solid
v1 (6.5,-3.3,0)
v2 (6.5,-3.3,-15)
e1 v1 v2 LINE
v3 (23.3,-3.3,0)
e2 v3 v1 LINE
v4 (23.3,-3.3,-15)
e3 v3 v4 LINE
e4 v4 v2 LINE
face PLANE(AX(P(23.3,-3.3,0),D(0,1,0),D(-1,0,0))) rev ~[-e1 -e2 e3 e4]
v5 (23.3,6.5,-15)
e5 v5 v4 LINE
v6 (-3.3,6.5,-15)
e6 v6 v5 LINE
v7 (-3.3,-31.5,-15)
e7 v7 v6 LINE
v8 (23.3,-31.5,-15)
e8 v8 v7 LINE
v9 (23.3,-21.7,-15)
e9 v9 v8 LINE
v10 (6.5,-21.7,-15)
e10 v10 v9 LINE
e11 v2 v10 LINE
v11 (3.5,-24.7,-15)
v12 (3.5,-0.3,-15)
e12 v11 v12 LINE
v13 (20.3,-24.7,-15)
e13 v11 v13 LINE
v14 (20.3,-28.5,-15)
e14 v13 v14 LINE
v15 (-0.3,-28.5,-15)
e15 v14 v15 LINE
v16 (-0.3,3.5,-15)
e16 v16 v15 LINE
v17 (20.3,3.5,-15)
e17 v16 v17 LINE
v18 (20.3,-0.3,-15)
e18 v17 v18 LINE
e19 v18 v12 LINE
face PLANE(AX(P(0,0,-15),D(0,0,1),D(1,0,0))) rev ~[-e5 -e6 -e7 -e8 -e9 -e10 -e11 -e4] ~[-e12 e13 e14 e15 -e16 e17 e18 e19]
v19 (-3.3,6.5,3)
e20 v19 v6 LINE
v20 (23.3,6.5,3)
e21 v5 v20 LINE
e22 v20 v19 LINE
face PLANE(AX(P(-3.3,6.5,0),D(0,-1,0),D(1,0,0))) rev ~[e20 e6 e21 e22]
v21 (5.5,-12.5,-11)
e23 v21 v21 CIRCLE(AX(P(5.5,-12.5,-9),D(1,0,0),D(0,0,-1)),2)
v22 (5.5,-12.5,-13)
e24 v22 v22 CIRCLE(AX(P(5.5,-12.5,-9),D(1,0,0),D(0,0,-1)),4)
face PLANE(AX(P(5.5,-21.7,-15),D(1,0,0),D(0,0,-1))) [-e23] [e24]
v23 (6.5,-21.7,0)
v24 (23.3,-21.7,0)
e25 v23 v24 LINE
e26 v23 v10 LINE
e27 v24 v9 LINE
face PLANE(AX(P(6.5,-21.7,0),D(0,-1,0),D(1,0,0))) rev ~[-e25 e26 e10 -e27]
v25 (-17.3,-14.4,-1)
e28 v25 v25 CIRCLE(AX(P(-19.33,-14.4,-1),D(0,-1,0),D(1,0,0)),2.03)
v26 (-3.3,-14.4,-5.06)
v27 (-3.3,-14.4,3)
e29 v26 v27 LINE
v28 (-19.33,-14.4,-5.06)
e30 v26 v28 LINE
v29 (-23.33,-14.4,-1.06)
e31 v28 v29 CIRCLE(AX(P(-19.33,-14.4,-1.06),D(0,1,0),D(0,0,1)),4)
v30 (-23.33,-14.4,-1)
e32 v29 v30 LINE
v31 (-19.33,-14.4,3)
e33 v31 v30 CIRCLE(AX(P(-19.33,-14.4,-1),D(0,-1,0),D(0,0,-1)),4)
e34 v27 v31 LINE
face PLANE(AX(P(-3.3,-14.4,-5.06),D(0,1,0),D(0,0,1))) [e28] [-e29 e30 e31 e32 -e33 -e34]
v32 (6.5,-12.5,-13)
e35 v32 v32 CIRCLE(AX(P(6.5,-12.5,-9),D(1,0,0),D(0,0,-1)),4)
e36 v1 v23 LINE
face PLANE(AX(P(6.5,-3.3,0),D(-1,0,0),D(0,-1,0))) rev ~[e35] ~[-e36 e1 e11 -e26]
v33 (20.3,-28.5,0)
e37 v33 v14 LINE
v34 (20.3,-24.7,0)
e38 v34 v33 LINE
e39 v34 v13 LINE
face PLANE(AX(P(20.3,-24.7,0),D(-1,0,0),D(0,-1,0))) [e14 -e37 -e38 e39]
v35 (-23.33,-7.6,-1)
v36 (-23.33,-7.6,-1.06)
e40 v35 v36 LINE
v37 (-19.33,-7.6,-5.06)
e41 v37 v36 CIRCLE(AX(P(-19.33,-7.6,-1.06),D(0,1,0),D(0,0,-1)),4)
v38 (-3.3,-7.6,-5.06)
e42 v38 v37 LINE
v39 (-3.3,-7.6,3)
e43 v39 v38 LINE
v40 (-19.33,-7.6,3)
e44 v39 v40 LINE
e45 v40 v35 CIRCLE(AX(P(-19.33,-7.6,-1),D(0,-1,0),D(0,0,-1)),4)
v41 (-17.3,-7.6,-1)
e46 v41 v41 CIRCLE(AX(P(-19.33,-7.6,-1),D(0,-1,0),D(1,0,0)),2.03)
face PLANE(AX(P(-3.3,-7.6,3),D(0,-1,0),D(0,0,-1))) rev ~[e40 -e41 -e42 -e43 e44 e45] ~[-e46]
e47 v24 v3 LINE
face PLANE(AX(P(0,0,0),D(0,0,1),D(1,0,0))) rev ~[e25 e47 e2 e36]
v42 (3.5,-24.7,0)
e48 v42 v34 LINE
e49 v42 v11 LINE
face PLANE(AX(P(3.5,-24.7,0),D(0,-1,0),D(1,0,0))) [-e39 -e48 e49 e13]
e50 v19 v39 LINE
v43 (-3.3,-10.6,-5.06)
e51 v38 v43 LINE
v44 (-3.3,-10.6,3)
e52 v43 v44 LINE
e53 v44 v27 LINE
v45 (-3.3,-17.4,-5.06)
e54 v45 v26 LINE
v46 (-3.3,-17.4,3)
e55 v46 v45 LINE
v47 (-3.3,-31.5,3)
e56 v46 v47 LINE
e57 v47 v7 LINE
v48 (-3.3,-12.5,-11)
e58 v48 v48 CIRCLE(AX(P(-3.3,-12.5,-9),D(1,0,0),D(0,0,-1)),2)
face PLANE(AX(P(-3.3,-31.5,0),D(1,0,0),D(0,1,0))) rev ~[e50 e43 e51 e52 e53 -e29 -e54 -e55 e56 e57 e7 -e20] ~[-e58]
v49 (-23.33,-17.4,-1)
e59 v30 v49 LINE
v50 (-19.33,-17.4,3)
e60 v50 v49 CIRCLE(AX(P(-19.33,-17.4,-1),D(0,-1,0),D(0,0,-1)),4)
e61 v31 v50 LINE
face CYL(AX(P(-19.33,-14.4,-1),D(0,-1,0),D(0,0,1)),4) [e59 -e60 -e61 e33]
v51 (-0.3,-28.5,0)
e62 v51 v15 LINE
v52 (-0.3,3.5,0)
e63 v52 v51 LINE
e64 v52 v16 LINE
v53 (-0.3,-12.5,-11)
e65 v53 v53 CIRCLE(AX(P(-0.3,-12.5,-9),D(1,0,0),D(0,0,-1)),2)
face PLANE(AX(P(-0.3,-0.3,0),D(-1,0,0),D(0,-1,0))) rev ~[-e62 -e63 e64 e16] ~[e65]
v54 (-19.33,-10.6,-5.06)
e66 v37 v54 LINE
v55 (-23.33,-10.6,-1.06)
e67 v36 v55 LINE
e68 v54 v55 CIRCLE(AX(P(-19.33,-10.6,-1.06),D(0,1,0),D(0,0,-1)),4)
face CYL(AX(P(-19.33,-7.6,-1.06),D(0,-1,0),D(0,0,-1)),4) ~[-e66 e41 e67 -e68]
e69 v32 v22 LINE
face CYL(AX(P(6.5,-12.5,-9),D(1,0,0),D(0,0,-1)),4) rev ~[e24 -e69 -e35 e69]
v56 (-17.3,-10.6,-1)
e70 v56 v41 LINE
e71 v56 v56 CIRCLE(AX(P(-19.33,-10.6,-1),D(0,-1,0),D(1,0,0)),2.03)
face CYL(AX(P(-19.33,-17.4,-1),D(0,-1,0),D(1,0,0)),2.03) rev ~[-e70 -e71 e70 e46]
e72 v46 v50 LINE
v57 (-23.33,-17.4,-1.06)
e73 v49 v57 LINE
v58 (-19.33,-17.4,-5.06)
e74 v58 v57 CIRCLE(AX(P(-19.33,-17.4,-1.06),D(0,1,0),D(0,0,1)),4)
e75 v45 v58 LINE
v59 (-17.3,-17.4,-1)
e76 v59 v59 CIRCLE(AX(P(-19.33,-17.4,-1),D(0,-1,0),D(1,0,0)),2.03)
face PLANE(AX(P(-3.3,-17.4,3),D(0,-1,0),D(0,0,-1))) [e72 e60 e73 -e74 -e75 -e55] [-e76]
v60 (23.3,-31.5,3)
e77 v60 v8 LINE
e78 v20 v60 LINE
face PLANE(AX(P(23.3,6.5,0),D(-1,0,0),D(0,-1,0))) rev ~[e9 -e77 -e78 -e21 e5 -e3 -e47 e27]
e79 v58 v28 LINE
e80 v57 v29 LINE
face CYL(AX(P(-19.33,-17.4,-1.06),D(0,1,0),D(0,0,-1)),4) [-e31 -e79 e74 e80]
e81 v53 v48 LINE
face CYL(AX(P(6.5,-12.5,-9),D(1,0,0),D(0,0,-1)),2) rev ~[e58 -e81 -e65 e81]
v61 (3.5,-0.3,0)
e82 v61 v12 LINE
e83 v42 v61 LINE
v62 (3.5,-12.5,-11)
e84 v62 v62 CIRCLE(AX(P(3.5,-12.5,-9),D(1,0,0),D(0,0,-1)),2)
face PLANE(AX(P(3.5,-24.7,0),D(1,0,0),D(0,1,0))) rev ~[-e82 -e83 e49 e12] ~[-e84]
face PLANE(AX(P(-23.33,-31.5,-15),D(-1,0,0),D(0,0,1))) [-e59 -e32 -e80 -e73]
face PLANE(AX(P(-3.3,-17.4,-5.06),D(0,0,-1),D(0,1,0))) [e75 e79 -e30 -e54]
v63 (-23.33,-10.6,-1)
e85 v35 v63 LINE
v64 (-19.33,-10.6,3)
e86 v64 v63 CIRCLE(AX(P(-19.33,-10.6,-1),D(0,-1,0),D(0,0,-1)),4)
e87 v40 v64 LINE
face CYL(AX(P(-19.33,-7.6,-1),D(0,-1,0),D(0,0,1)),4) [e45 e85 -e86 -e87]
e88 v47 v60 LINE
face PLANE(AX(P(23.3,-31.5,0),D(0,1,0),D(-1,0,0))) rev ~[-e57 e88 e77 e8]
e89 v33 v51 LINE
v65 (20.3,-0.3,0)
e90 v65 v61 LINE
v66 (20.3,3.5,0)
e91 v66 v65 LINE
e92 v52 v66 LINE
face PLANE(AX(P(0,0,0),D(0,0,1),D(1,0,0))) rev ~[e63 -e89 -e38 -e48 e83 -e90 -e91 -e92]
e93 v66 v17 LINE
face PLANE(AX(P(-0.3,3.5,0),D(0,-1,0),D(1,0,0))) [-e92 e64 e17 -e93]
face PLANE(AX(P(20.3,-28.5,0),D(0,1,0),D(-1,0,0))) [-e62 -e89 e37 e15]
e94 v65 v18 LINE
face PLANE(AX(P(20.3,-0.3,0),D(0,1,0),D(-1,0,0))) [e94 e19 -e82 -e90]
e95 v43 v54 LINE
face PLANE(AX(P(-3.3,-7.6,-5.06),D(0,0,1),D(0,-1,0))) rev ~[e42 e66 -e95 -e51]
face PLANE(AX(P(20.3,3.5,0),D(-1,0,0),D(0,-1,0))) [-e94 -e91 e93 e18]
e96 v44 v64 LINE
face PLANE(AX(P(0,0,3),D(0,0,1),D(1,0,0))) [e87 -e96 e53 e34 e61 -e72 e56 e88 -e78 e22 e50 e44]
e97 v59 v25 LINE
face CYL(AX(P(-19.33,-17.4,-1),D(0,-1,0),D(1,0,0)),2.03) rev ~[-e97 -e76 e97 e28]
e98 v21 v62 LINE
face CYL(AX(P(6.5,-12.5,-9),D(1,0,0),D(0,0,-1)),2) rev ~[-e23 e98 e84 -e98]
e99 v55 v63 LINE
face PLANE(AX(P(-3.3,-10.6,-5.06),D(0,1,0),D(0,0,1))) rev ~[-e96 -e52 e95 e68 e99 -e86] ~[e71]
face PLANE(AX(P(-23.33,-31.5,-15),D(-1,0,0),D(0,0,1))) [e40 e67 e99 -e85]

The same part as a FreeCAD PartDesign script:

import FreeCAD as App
import Part
import Sketcher

V = App.Vector
Q = App.Units.Quantity


def edges_at(feature, points):
    """Names of the edges that pass closest to the given points."""
    edges = feature.Shape.Edges
    near = lambda p: min(range(len(edges)), key=lambda i: edges[i].distToShape(Part.Vertex(*p))[0])
    return sorted({f"Edge{near(p) + 1}" for p in points})


def add_polygon(sketch, points):
    """Adds a closed chain of lines whose ends are joined by coincident constraints."""
    first, n = sketch.GeometryCount, len(points)
    for a, b in zip(points, points[1:] + points[:1]):
        sketch.addGeometry(Part.LineSegment(App.Vector(*a, 0), App.Vector(*b, 0)), False)
    for i in range(n):
        sketch.addConstraint(Sketcher.Constraint("Coincident", first + i, 2, first + (i + 1) % n, 1))

doc = App.newDocument("Part")
body = doc.addObject("PartDesign::Body", "Body")

# Sketch on XY plane
sketch1 = doc.addObject("Sketcher::SketchObject", "Sketch")
body.addObject(sketch1)
sketch1.AttachmentSupport = (doc.XY_Plane, [""])
sketch1.MapMode = "FlatFace"
add_polygon(sketch1, [(6.5, -21.7), (6.5, -3.3), (23.3, -3.3), (23.3, 6.5), (-3.3, 6.5), (-3.3, -31.5), (23.3, -31.5), (23.3, -21.7)])  # lines 0-7
add_polygon(sketch1, [(-0.3, -28.5), (-0.3, 3.5), (20.3, 3.5), (20.3, -0.3), (3.5, -0.3), (3.5, -24.7), (20.3, -24.7), (20.3, -28.5)])  # lines 8-15
sketch1.addConstraint(Sketcher.Constraint("Vertical", 0))
sketch1.addConstraint(Sketcher.Constraint("Horizontal", 1))
sketch1.addConstraint(Sketcher.Constraint("Vertical", 2))
sketch1.addConstraint(Sketcher.Constraint("Horizontal", 3))
sketch1.addConstraint(Sketcher.Constraint("Vertical", 4))
sketch1.addConstraint(Sketcher.Constraint("Horizontal", 5))
sketch1.addConstraint(Sketcher.Constraint("Vertical", 6))
sketch1.addConstraint(Sketcher.Constraint("Horizontal", 7))
sketch1.addConstraint(Sketcher.Constraint("Vertical", 8))
sketch1.addConstraint(Sketcher.Constraint("Horizontal", 9))
sketch1.addConstraint(Sketcher.Constraint("Vertical", 10))
sketch1.addConstraint(Sketcher.Constraint("Horizontal", 11))
sketch1.addConstraint(Sketcher.Constraint("Vertical", 12))
sketch1.addConstraint(Sketcher.Constraint("Horizontal", 13))
sketch1.addConstraint(Sketcher.Constraint("Vertical", 14))
sketch1.addConstraint(Sketcher.Constraint("Horizontal", 15))
sketch1.addConstraint(Sketcher.Constraint("Vertical", 2, 2, 5, 2))
sketch1.addConstraint(Sketcher.Constraint("Vertical", 10, 2, 13, 2))
sketch1.addConstraint(Sketcher.Constraint("Equal", 7, 11))
sketch1.addConstraint(Sketcher.Constraint("Equal", 2, 6))
sketch1.addConstraint(Sketcher.Constraint("Equal", 10, 14))
sketch1.addConstraint(Sketcher.Constraint("DistanceY", 10, 2, 10, 1, Q("3.8 mm")))
sketch1.addConstraint(Sketcher.Constraint("DistanceY", 12, 2, 12, 1, Q("24.4 mm")))
sketch1.addConstraint(Sketcher.Constraint("DistanceX", 3, 2, 8, 2, Q("3 mm")))
sketch1.addConstraint(Sketcher.Constraint("DistanceY", 8, 2, 3, 2, Q("3 mm")))
sketch1.addConstraint(Sketcher.Constraint("DistanceX", 9, 2, 2, 2, Q("3 mm")))
sketch1.addConstraint(Sketcher.Constraint("DistanceY", 1, 2, 10, 2, Q("3 mm")))
sketch1.addConstraint(Sketcher.Constraint("DistanceY", 12, 2, 7, 2, Q("3 mm")))
sketch1.addConstraint(Sketcher.Constraint("DistanceX", 8, 2, -1, 1, Q("0.3 mm")))
sketch1.addConstraint(Sketcher.Constraint("DistanceY", 10, 2, -1, 1, Q("0.3 mm")))
sketch1.addConstraint(Sketcher.Constraint("DistanceX", 8, 2, 11, 2, Q("3.8 mm")))
sketch1.addConstraint(Sketcher.Constraint("DistanceX", 1, 1, 1, 2, Q("16.8 mm")))
pad1 = doc.addObject("PartDesign::Pad", "Pad")
body.addObject(pad1)
pad1.Profile = sketch1
pad1.Length = 15
pad1.Reversed = True

# Sketch on XY plane
sketch2 = doc.addObject("Sketcher::SketchObject", "Sketch001")
body.addObject(sketch2)
sketch2.AttachmentSupport = (doc.XY_Plane, [""])
sketch2.MapMode = "FlatFace"
add_polygon(sketch2, [(23, -32), (23, 6), (-3, 6), (-3, -32)])  # lines 0-3
sketch2.addConstraint(Sketcher.Constraint("Vertical", 0))
sketch2.addConstraint(Sketcher.Constraint("Horizontal", 1))
sketch2.addConstraint(Sketcher.Constraint("Vertical", 2))
sketch2.addConstraint(Sketcher.Constraint("Horizontal", 3))
sketch2.addConstraint(Sketcher.Constraint("DistanceY", 0, 1, 0, 2, Q("38 mm")))
sketch2.addConstraint(Sketcher.Constraint("DistanceX", 1, 2, 1, 1, Q("26.6 mm")))
sketch2.addConstraint(Sketcher.Constraint("DistanceX", -1, 1, 0, 2, Q("23.3 mm")))
sketch2.addConstraint(Sketcher.Constraint("DistanceY", -1, 1, 0, 2, Q("6.5 mm")))
pad2 = doc.addObject("PartDesign::Pad", "Pad001")
body.addObject(pad2)
pad2.Profile = sketch2
pad2.Length = 3

# Sketch on YZ plane
sketch3 = doc.addObject("Sketcher::SketchObject", "Sketch002")
body.addObject(sketch3)
sketch3.AttachmentSupport = (doc.YZ_Plane, [""])
sketch3.MapMode = "FlatFace"
sketch3.AttachmentOffset = App.Placement(V(0, 0, 6.5), App.Rotation())
sketch3.addGeometry(Part.Circle(V(-12.5, -9, 0), V(0, 0, 1), 4), False)
sketch3.addGeometry(Part.Circle(V(-12.5, -9, 0), V(0, 0, 1), 2), False)
sketch3.addConstraint(Sketcher.Constraint("Coincident", 1, 3, 0, 3))
sketch3.addConstraint(Sketcher.Constraint("Diameter", 0, Q("8 mm")))
sketch3.addConstraint(Sketcher.Constraint("Diameter", 1, Q("4 mm")))
sketch3.addConstraint(Sketcher.Constraint("DistanceY", 0, 3, -1, 1, Q("9 mm")))
sketch3.addConstraint(Sketcher.Constraint("DistanceX", 0, 3, -1, 1, Q("12.5 mm")))
pocket1 = doc.addObject("PartDesign::Pocket", "Pocket")
body.addObject(pocket1)
pocket1.Profile = sketch3
pocket1.Length = 1

# Sketch on YZ plane
sketch4 = doc.addObject("Sketcher::SketchObject", "Sketch003")
body.addObject(sketch4)
sketch4.AttachmentSupport = (doc.YZ_Plane, [""])
sketch4.MapMode = "FlatFace"
sketch4.AttachmentOffset = App.Placement(V(0, 0, 6.5), App.Rotation())
sketch4.addGeometry(Part.Circle(V(-12.5, -9, 0), V(0, 0, 1), 2), False)
sketch4.addConstraint(Sketcher.Constraint("Diameter", 0, Q("4 mm")))
sketch4.addConstraint(Sketcher.Constraint("DistanceY", 0, 3, -1, 1, Q("9 mm")))
sketch4.addConstraint(Sketcher.Constraint("DistanceX", 0, 3, -1, 1, Q("12.5 mm")))
pocket2 = doc.addObject("PartDesign::Pocket", "Pocket001")
body.addObject(pocket2)
pocket2.Profile = sketch4
pocket2.Length = 80

# Sketch on YZ plane
sketch5 = doc.addObject("Sketcher::SketchObject", "Sketch004")
body.addObject(sketch5)
sketch5.AttachmentSupport = (doc.YZ_Plane, [""])
sketch5.MapMode = "FlatFace"
sketch5.AttachmentOffset = App.Placement(V(0, 0, -3.3), App.Rotation())
add_polygon(sketch5, [(-17.4, 3), (-14.4, 3), (-14.4, -5.1), (-17.4, -5.1)])  # lines 0-3
add_polygon(sketch5, [(-10.6, 3), (-7.6, 3), (-7.6, -5.1), (-10.6, -5.1)])  # lines 4-7
sketch5.addConstraint(Sketcher.Constraint("Horizontal", 0))
sketch5.addConstraint(Sketcher.Constraint("Vertical", 1))
sketch5.addConstraint(Sketcher.Constraint("Horizontal", 2))
sketch5.addConstraint(Sketcher.Constraint("Vertical", 3))
sketch5.addConstraint(Sketcher.Constraint("Horizontal", 4))
sketch5.addConstraint(Sketcher.Constraint("Vertical", 5))
sketch5.addConstraint(Sketcher.Constraint("Horizontal", 6))
sketch5.addConstraint(Sketcher.Constraint("Vertical", 7))
sketch5.addConstraint(Sketcher.Constraint("Horizontal", 3, 2, 4, 2))
sketch5.addConstraint(Sketcher.Constraint("Horizontal", 2, 2, 5, 2))
sketch5.addConstraint(Sketcher.Constraint("Equal", 2, 4))
sketch5.addConstraint(Sketcher.Constraint("DistanceX", 0, 1, 0, 2, Q("3 mm")))
sketch5.addConstraint(Sketcher.Constraint("DistanceY", -1, 1, 0, 2, Q("3 mm")))
sketch5.addConstraint(Sketcher.Constraint("DistanceY", 1, 2, 1, 1, Q("8.06 mm")))
sketch5.addConstraint(Sketcher.Constraint("DistanceX", 0, 2, -1, 1, Q("14.4 mm")))
sketch5.addConstraint(Sketcher.Constraint("DistanceX", 4, 2, -1, 1, Q("7.6 mm")))
pad3 = doc.addObject("PartDesign::Pad", "Pad002")
body.addObject(pad3)
pad3.Profile = sketch5
pad3.Length = 20.03
pad3.Reversed = True
doc.recompute()

fillet = doc.addObject("PartDesign::Fillet", "Fillet")
body.addObject(fillet)
fillet.Base = (pad3, edges_at(pad3, [
    (-23.33, -15.9, 3),
    (-23.33, -9.1, 3),
    (-23.33, -9.1, -5.06),
    (-23.33, -15.9, -5.06),
]))
fillet.Radius = 4

# Sketch on XZ plane
sketch6 = doc.addObject("Sketcher::SketchObject", "Sketch005")
body.addObject(sketch6)
sketch6.AttachmentSupport = (doc.XZ_Plane, [""])
sketch6.MapMode = "FlatFace"
sketch6.AttachmentOffset = App.Placement(V(0, 0, 17.4), App.Rotation())
sketch6.addGeometry(Part.Circle(V(-19.3, -1, 0), V(0, 0, 1), 2), False)
sketch6.addConstraint(Sketcher.Constraint("Diameter", 0, Q("4.06 mm")))
sketch6.addConstraint(Sketcher.Constraint("DistanceY", 0, 3, -1, 1, Q("1 mm")))
sketch6.addConstraint(Sketcher.Constraint("DistanceX", 0, 3, -1, 1, Q("19.33 mm")))
pocket3 = doc.addObject("PartDesign::Pocket", "Pocket002")
body.addObject(pocket3)
pocket3.Profile = sketch6
pocket3.Length = 20

doc.recompute()
